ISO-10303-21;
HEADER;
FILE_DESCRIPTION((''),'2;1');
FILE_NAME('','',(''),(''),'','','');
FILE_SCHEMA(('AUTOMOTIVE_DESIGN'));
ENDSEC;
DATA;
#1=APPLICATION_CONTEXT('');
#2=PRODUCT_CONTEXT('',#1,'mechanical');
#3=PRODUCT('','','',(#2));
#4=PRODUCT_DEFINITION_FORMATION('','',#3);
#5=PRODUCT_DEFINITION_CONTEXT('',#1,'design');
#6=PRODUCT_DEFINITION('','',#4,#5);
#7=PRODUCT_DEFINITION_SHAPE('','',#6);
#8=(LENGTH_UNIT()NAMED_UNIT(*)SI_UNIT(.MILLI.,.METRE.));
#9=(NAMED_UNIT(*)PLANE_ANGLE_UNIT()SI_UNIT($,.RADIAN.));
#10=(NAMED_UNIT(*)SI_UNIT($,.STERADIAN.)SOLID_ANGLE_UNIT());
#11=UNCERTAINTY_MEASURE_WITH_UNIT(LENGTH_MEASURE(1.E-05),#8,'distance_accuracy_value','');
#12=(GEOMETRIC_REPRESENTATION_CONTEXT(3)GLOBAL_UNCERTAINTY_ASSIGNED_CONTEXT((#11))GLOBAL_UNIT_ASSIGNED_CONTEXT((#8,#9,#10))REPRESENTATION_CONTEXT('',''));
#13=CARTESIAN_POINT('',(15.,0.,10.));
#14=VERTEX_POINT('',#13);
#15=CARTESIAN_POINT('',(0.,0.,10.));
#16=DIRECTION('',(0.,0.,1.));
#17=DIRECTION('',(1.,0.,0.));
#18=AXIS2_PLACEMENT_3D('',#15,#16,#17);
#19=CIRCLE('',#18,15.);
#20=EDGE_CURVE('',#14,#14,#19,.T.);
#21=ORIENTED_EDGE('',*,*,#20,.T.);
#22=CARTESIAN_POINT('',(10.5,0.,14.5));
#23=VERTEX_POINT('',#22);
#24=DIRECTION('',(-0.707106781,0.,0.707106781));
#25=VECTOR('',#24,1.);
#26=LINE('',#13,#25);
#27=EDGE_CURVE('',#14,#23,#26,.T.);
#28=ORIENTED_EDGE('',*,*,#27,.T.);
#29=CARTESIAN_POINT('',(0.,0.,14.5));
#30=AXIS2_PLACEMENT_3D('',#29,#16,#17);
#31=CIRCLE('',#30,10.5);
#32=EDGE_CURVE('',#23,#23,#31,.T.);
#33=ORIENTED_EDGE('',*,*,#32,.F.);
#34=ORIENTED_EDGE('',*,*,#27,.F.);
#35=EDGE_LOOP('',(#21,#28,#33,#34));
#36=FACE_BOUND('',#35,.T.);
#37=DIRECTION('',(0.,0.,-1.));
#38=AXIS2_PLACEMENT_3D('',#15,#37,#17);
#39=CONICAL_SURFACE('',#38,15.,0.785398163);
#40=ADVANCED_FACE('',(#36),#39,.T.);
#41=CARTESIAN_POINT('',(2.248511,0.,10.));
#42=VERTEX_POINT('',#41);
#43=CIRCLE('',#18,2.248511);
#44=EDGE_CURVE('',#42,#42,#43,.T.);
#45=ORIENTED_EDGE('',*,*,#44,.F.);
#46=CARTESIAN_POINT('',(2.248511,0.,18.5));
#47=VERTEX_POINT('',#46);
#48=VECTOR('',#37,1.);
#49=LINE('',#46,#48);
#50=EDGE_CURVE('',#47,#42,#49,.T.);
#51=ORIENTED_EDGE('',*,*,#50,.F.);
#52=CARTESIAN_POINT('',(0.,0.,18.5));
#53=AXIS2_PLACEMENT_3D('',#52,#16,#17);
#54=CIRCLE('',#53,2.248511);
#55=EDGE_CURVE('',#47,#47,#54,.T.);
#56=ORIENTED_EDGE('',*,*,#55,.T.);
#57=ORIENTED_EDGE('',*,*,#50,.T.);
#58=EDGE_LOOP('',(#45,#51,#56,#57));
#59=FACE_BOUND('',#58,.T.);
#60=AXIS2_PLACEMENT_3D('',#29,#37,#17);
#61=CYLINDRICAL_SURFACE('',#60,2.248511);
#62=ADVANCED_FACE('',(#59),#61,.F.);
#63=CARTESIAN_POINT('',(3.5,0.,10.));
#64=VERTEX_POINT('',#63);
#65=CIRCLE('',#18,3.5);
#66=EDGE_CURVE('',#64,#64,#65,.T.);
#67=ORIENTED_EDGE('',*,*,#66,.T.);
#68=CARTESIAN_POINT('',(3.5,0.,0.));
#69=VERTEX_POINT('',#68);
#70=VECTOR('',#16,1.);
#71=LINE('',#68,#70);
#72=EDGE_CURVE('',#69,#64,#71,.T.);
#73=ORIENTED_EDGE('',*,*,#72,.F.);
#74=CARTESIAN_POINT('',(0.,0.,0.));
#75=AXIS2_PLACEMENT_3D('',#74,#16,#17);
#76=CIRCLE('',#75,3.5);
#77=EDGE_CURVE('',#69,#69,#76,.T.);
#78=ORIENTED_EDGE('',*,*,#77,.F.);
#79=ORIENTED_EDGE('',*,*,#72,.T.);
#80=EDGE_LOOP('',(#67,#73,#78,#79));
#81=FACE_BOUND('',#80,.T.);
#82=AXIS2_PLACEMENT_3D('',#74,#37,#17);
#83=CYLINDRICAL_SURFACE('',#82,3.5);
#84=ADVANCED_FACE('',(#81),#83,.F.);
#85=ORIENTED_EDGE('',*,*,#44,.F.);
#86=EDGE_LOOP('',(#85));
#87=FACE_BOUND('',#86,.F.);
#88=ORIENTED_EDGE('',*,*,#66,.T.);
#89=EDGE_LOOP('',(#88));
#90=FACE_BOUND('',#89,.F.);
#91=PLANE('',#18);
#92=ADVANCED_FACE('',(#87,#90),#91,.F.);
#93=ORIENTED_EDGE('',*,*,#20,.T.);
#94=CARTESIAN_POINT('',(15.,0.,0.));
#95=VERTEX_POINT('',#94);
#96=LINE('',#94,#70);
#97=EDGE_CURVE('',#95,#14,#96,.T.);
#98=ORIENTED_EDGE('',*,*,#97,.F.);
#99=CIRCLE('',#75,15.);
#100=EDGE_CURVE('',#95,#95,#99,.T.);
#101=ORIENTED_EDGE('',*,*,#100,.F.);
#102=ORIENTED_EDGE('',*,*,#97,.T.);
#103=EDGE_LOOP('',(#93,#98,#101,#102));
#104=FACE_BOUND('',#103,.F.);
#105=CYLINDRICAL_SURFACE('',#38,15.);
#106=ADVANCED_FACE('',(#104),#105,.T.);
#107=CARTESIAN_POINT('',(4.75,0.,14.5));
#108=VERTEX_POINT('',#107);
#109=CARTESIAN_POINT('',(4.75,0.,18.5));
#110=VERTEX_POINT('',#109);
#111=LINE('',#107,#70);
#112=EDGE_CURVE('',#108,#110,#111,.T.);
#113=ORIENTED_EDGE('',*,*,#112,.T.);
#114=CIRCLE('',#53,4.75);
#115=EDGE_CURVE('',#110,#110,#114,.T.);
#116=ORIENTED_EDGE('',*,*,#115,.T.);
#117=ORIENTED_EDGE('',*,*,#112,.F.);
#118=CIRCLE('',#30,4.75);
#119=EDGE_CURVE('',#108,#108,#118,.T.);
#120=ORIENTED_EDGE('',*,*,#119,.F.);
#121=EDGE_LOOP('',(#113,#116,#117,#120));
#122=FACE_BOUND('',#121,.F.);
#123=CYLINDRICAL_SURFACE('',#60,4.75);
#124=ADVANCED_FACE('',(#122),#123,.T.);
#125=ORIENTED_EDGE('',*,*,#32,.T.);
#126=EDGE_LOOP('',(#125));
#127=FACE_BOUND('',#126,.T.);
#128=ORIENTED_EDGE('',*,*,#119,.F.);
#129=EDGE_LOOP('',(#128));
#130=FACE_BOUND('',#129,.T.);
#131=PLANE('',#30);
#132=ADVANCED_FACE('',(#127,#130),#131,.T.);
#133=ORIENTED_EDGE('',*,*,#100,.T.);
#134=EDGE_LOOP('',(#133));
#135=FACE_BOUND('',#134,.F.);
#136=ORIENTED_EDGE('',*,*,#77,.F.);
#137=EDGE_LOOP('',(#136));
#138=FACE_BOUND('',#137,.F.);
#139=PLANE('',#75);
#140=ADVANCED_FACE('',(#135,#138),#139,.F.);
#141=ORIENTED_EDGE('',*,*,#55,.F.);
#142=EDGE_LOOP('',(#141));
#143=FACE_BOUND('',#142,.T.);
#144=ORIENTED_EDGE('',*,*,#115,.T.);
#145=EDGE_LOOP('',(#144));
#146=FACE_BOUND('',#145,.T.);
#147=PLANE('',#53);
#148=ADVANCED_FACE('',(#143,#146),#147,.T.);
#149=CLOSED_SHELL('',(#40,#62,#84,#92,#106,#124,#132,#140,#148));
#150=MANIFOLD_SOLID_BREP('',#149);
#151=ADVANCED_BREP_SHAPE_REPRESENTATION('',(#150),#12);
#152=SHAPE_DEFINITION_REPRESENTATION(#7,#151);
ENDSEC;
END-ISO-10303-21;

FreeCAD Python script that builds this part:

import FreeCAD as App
import Part
import Sketcher
from FreeCAD import Vector


def edges_at(feature, points):
    """Names of the edges that pass closest to the given points."""
    edges = feature.Shape.Edges
    near = lambda p: min(range(len(edges)), key=lambda i: edges[i].distToShape(Part.Vertex(*p))[0])
    return sorted({f"Edge{near(p) + 1}" for p in points})

doc = App.newDocument("Part")
body = doc.addObject("PartDesign::Body", "Body")

# Sketch on XY plane
sketch1 = doc.addObject("Sketcher::SketchObject", "Sketch")
body.addObject(sketch1)
sketch1.AttachmentSupport = (doc.XY_Plane, [""])
sketch1.MapMode = "FlatFace"
sketch1.addGeometry(Part.Circle(Vector(0, 0, 0), Vector(0, 0, 1), 15), False)
sketch1.addConstraint(Sketcher.Constraint("Coincident", 0, 3, -1, 1))
sketch1.addConstraint(Sketcher.Constraint("Diameter", 0, 30.0))
pad1 = doc.addObject("PartDesign::Pad", "Pad")
body.addObject(pad1)
pad1.Profile = sketch1
pad1.Length = 10

# Sketch on XY plane
sketch2 = doc.addObject("Sketcher::SketchObject", "Sketch001")
body.addObject(sketch2)
sketch2.AttachmentSupport = (doc.XY_Plane, [""])
sketch2.MapMode = "FlatFace"
sketch2.AttachmentOffset = App.Placement(Vector(0, 0, 10), App.Rotation())
sketch2.addGeometry(Part.Circle(Vector(0, 0, 0), Vector(0, 0, 1), 15), False)
sketch2.addConstraint(Sketcher.Constraint("Coincident", 0, 3, -1, 1))
sketch2.addConstraint(Sketcher.Constraint("Diameter", 0, 30.0))
pad2 = doc.addObject("PartDesign::Pad", "Pad001")
body.addObject(pad2)
pad2.Profile = sketch2
pad2.Length = 4.5
doc.recompute()

chamfer = doc.addObject("PartDesign::Chamfer", "Chamfer")
body.addObject(chamfer)
chamfer.Base = (pad2, edges_at(pad2, [(-15, 0, 14.5)]))
chamfer.ChamferType = "Two distances"
chamfer.Size = 4.5
chamfer.Size2 = 4.5

# Sketch on XY plane
sketch3 = doc.addObject("Sketcher::SketchObject", "Sketch002")
body.addObject(sketch3)
sketch3.AttachmentSupport = (doc.XY_Plane, [""])
sketch3.MapMode = "FlatFace"
sketch3.AttachmentOffset = App.Placement(Vector(0, 0, 14.5), App.Rotation())
sketch3.addGeometry(Part.Circle(Vector(0, 0, 0), Vector(0, 0, 1), 2.2), False)
sketch3.addConstraint(Sketcher.Constraint("Coincident", 0, 3, -1, 1))
sketch3.addConstraint(Sketcher.Constraint("Diameter", 0, 4.497021))
pocket1 = doc.addObject("PartDesign::Pocket", "Pocket")
body.addObject(pocket1)
pocket1.Profile = sketch3
pocket1.Length = 4.5

# Sketch on XY plane
sketch4 = doc.addObject("Sketcher::SketchObject", "Sketch003")
body.addObject(sketch4)
sketch4.AttachmentSupport = (doc.XY_Plane, [""])
sketch4.MapMode = "FlatFace"
sketch4.addGeometry(Part.Circle(Vector(0, 0, 0), Vector(0, 0, 1), 3.5), False)
sketch4.addConstraint(Sketcher.Constraint("Coincident", 0, 3, -1, 1))
sketch4.addConstraint(Sketcher.Constraint("Diameter", 0, 7.0))
pocket2 = doc.addObject("PartDesign::Pocket", "Pocket001")
body.addObject(pocket2)
pocket2.Profile = sketch4
pocket2.Length = 10
pocket2.Reversed = True

# Sketch on XY plane
sketch5 = doc.addObject("Sketcher::SketchObject", "Sketch004")
body.addObject(sketch5)
sketch5.AttachmentSupport = (doc.XY_Plane, [""])
sketch5.MapMode = "FlatFace"
sketch5.AttachmentOffset = App.Placement(Vector(0, 0, 14.5), App.Rotation())
sketch5.addGeometry(Part.Circle(Vector(0, 0, 0), Vector(0, 0, 1), 4.8), False)
sketch5.addGeometry(Part.Circle(Vector(0, 0, 0), Vector(0, 0, 1), 2.2), False)
sketch5.addConstraint(Sketcher.Constraint("Coincident", 0, 3, -1, 1))
sketch5.addConstraint(Sketcher.Constraint("Coincident", 1, 3, -1, 1))
sketch5.addConstraint(Sketcher.Constraint("Diameter", 0, 9.5))
sketch5.addConstraint(Sketcher.Constraint("Diameter", 1, 4.497021))
pad3 = doc.addObject("PartDesign::Pad", "Pad002")
body.addObject(pad3)
pad3.Profile = sketch5
pad3.Length = 4

doc.recompute()
